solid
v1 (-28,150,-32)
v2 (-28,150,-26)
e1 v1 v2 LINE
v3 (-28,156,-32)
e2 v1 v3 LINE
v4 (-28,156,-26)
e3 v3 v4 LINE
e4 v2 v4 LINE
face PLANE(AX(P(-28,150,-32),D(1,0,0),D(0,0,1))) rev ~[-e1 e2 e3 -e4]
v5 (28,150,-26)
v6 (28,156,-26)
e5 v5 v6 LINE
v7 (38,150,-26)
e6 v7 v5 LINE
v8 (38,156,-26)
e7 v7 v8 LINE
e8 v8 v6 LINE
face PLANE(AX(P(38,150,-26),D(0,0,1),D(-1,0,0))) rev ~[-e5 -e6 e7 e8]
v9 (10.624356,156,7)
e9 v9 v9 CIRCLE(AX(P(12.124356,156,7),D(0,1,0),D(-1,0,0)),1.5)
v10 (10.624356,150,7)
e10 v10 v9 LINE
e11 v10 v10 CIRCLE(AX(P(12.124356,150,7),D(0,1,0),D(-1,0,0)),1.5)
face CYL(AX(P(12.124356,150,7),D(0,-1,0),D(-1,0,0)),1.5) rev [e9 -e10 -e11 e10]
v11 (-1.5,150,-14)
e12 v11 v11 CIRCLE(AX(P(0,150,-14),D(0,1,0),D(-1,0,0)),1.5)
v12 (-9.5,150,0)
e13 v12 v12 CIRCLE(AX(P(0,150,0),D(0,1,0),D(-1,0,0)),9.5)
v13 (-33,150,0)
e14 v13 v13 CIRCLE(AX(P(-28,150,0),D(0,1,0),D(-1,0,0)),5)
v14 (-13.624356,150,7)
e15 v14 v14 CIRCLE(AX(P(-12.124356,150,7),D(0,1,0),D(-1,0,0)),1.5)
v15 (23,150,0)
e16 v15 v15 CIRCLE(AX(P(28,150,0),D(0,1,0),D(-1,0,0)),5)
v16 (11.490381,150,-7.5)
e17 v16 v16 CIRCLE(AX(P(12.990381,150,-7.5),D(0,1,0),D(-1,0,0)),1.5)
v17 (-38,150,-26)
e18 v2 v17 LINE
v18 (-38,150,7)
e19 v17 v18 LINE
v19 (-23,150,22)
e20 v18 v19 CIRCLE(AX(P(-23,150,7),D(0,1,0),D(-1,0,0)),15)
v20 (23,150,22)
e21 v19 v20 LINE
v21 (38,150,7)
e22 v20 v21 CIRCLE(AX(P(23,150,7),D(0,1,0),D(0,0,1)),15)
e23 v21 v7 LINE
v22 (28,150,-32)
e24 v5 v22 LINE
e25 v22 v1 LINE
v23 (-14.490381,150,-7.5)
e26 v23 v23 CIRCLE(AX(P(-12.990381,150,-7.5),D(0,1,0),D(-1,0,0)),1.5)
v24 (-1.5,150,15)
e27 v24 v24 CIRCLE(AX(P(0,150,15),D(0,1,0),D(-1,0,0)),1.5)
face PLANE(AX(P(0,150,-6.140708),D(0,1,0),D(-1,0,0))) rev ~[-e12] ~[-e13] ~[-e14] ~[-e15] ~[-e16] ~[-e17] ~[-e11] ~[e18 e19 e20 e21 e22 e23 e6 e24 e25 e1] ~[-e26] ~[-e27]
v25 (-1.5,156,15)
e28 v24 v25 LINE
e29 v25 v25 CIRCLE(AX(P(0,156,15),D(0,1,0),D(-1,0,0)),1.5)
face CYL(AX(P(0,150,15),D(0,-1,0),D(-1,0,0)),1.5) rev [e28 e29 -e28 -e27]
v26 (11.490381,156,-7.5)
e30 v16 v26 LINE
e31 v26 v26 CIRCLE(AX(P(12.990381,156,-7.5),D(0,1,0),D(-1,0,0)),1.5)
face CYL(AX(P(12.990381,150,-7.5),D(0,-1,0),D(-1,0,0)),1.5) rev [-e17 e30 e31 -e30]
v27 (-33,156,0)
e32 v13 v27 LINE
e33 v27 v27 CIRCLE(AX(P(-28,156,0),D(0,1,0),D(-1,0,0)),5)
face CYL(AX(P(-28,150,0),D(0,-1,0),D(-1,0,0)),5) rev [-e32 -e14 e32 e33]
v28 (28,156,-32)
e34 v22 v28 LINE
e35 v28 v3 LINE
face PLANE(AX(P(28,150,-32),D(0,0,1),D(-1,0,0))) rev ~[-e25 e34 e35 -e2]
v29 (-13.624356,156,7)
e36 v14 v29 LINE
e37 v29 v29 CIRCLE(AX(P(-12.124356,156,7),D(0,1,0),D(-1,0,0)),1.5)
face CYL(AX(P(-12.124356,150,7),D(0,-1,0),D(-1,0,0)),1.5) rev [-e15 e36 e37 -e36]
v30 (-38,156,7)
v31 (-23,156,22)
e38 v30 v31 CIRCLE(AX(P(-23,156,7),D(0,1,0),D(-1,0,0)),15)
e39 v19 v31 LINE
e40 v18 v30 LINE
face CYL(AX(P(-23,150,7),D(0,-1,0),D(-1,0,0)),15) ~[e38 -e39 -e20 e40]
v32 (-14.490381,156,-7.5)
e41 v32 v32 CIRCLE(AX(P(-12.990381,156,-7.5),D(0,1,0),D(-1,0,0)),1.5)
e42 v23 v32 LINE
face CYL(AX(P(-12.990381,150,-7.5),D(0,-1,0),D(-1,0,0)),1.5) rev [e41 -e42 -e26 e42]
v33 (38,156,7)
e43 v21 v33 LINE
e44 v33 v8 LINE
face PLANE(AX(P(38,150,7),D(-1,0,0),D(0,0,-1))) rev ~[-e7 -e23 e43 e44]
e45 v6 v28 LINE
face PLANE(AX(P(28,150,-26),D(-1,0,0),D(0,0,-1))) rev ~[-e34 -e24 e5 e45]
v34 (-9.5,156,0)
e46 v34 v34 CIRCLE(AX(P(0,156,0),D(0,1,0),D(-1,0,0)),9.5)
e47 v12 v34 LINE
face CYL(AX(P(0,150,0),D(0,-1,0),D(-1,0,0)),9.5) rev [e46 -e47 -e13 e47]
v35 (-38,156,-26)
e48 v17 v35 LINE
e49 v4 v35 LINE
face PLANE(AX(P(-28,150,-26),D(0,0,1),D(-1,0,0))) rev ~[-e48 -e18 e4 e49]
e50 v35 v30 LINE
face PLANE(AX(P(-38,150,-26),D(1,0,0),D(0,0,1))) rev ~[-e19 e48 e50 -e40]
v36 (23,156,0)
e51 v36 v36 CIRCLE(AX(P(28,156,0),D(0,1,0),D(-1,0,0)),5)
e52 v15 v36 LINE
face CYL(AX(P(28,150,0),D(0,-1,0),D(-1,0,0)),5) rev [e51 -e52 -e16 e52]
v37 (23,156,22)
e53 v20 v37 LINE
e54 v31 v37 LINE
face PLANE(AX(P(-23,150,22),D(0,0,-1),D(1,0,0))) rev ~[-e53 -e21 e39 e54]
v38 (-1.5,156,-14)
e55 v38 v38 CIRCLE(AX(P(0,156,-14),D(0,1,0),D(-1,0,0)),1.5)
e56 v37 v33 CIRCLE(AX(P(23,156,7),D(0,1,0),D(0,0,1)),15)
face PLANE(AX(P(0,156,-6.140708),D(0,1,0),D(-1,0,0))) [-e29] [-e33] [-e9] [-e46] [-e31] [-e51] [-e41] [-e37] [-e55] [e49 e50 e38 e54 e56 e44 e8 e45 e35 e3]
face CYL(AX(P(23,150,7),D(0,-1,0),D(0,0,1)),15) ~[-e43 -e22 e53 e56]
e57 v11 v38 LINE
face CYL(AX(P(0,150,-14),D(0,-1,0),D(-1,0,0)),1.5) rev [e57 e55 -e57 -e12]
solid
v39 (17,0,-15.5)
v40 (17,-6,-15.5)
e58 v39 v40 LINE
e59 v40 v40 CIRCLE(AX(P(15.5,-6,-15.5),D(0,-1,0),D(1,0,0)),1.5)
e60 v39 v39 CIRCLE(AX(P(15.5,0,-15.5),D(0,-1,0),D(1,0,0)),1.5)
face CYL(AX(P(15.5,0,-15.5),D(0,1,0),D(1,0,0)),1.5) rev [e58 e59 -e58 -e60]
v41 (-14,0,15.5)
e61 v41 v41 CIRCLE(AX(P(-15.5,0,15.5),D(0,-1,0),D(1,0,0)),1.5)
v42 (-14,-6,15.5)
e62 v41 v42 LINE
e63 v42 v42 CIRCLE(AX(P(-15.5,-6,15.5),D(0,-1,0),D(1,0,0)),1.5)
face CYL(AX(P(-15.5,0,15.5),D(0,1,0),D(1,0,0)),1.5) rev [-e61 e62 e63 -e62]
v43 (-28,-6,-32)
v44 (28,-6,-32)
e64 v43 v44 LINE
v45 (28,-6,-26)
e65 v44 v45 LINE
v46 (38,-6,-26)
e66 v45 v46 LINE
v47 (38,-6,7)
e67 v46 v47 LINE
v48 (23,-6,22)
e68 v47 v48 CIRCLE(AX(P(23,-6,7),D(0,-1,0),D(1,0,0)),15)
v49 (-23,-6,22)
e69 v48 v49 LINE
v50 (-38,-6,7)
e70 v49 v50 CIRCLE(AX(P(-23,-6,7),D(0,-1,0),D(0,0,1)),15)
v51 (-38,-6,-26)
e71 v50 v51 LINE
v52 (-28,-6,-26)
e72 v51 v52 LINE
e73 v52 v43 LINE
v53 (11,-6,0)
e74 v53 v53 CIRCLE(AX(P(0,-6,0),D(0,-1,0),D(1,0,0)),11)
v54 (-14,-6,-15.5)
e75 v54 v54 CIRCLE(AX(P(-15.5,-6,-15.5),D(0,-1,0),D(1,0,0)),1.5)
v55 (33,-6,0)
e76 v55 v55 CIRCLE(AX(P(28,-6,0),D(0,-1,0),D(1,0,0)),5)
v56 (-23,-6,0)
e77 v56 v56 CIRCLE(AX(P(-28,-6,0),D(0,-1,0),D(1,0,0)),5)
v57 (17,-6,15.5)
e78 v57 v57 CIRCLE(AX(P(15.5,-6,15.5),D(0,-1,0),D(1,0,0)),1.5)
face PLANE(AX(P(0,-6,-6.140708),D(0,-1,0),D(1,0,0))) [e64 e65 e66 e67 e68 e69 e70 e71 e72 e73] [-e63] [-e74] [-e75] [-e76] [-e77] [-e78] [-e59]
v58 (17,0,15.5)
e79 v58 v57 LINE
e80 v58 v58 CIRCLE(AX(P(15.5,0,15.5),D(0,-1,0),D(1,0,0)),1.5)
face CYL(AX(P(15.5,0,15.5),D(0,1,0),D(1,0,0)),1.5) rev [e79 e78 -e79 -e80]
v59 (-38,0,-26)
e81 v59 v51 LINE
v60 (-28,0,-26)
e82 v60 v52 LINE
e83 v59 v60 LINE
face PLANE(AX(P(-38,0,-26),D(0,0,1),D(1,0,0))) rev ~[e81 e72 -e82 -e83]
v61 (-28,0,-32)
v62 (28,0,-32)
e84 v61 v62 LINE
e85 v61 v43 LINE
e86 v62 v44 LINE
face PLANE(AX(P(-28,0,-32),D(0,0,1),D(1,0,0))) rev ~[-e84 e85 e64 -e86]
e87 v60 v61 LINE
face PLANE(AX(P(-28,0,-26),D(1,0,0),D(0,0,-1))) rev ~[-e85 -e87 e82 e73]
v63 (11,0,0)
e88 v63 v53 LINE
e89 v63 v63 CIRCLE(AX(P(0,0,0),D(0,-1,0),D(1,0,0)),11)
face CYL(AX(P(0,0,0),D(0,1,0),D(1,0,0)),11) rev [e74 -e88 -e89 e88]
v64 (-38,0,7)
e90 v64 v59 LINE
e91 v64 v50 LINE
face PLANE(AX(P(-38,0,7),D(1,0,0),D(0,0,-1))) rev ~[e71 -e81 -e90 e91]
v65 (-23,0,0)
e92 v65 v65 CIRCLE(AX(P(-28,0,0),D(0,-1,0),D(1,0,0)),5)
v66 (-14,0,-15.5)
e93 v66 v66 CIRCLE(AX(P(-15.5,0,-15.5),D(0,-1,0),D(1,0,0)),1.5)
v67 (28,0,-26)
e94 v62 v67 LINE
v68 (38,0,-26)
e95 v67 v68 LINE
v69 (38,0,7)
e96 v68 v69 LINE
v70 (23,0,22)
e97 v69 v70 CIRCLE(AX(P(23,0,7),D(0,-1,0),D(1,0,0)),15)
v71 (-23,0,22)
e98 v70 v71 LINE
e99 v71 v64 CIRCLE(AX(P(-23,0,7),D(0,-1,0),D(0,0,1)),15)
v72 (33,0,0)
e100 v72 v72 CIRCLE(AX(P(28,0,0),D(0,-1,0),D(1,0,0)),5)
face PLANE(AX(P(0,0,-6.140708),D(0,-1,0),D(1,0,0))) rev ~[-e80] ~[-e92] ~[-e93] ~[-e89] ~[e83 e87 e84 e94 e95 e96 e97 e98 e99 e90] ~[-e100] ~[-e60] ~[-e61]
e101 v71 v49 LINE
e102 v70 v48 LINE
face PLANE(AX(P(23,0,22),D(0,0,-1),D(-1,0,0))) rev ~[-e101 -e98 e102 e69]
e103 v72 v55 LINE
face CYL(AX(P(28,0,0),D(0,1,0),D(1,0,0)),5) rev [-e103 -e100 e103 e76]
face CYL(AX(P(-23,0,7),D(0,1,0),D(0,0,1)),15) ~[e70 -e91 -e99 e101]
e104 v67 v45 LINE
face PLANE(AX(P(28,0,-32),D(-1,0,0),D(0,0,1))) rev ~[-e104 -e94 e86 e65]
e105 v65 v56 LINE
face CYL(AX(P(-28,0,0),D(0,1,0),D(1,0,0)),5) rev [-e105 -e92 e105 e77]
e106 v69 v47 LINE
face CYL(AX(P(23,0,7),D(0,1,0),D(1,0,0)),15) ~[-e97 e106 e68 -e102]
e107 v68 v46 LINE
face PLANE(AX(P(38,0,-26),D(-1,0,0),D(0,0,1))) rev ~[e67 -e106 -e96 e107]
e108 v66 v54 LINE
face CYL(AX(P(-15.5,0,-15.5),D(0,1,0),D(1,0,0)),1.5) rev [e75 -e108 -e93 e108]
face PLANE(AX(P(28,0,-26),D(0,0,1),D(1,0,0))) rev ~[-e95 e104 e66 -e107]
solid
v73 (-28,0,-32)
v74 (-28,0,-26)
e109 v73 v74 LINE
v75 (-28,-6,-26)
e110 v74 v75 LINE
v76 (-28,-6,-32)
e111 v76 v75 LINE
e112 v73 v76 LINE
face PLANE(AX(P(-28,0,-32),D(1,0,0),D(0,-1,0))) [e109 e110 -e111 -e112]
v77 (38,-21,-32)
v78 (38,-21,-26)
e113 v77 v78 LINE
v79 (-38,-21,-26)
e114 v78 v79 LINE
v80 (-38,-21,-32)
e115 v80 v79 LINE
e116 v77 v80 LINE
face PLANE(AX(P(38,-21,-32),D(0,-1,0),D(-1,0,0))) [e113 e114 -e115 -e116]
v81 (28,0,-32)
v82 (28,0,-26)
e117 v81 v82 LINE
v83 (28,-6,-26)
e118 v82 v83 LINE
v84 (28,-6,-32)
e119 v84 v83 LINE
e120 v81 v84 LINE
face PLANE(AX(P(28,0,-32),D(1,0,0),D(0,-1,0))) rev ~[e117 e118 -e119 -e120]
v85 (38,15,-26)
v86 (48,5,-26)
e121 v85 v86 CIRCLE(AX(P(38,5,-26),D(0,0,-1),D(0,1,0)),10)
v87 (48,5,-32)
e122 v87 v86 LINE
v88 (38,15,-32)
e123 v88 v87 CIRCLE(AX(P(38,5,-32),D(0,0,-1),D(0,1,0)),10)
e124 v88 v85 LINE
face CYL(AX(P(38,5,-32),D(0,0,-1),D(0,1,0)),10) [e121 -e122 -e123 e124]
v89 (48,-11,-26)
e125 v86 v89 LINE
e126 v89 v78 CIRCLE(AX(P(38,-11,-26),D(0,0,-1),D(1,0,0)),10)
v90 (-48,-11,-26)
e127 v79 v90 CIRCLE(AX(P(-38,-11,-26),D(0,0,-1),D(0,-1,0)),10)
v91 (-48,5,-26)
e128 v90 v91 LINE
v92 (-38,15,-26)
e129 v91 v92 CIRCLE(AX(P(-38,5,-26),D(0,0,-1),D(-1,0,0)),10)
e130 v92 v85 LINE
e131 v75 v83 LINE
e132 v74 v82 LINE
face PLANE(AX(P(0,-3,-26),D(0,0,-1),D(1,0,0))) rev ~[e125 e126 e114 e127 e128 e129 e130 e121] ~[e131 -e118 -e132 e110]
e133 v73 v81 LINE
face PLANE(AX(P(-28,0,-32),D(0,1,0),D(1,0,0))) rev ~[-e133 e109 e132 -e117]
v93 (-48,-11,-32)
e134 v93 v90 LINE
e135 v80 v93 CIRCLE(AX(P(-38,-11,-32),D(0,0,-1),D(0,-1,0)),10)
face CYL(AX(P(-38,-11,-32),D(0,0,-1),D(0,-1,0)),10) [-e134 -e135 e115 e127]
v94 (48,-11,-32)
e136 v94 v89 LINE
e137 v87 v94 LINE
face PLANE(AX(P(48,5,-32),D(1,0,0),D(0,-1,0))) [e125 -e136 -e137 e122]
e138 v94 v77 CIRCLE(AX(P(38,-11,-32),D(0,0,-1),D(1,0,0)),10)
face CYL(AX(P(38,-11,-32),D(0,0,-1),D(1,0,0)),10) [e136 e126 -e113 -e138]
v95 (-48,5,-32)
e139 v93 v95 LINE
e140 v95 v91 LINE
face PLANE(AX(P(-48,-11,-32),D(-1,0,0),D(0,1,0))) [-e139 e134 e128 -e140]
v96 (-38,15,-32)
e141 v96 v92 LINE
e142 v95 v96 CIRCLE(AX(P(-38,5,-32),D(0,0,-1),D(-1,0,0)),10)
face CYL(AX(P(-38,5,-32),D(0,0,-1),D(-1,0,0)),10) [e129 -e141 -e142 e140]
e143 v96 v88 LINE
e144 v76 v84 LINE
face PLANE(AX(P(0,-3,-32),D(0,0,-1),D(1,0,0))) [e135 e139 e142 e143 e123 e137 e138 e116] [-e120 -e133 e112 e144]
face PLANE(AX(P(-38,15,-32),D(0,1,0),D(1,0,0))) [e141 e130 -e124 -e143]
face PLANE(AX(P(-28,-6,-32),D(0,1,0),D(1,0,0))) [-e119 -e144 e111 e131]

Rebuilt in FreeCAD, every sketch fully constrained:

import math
import FreeCAD as App
import Part
import Sketcher


def add_polygon(sketch, points):
    """Adds a closed chain of lines whose ends are joined by coincident constraints."""
    first, n = sketch.GeometryCount, len(points)
    for a, b in zip(points, points[1:] + points[:1]):
        sketch.addGeometry(Part.LineSegment(App.Vector(*a, 0), App.Vector(*b, 0)), False)
    for i in range(n):
        sketch.addConstraint(Sketcher.Constraint("Coincident", first + i, 2, first + (i + 1) % n, 1))

doc = App.newDocument("Part")
body = doc.addObject("PartDesign::Body", "Body")

sketch1 = body.newObject("Sketcher::SketchObject", "Sketch")
sketch1.AttachmentSupport = (doc.getObject("XZ_Plane"), [""])
sketch1.MapMode = "FlatFace"
sketch1.addGeometry([
    Part.LineSegment(App.Vector(23, 22, 0), App.Vector(-23, 22, 0)),
    Part.ArcOfCircle(Part.Circle(App.Vector(-23, 7, 0), App.Vector(0, 0, 1), 15), math.radians(90), math.radians(180)),
    Part.LineSegment(App.Vector(-38, 7, 0), App.Vector(-38, -26, 0)),
    Part.LineSegment(App.Vector(-38, -26, 0), App.Vector(-28, -26, 0)),
    Part.LineSegment(App.Vector(-28, -26, 0), App.Vector(-28, -32, 0)),
    Part.LineSegment(App.Vector(-28, -32, 0), App.Vector(28, -32, 0)),
    Part.LineSegment(App.Vector(28, -32, 0), App.Vector(28, -26, 0)),
    Part.LineSegment(App.Vector(28, -26, 0), App.Vector(38, -26, 0)),
    Part.LineSegment(App.Vector(38, -26, 0), App.Vector(38, 7, 0)),
    Part.ArcOfCircle(Part.Circle(App.Vector(23, 7, 0), App.Vector(0, 0, 1), 15), math.radians(0), math.radians(90)),
    Part.Circle(App.Vector(-15.5, -15.5, 0), App.Vector(0, 0, 1), 1.5),
    Part.Circle(App.Vector(15.5, -15.5, 0), App.Vector(0, 0, 1), 1.5),
    Part.Circle(App.Vector(-28, 0, 0), App.Vector(0, 0, 1), 5),
    Part.Circle(App.Vector(-15.5, 15.5, 0), App.Vector(0, 0, 1), 1.5),
    Part.Circle(App.Vector(0, 0, 0), App.Vector(0, 0, 1), 11),
    Part.Circle(App.Vector(28, 0, 0), App.Vector(0, 0, 1), 5),
    Part.Circle(App.Vector(15.5, 15.5, 0), App.Vector(0, 0, 1), 1.5),
], False)
sketch1.addConstraint([
    Sketcher.Constraint("Tangent", 0, 2, 1, 1),
    Sketcher.Constraint("Tangent", 1, 2, 2, 1),
    Sketcher.Constraint("Coincident", 2, 2, 3, 1),
    Sketcher.Constraint("Coincident", 3, 2, 4, 1),
    Sketcher.Constraint("Coincident", 4, 2, 5, 1),
    Sketcher.Constraint("Coincident", 5, 2, 6, 1),
    Sketcher.Constraint("Coincident", 6, 2, 7, 1),
    Sketcher.Constraint("Coincident", 7, 2, 8, 1),
    Sketcher.Constraint("Tangent", 8, 2, 9, 1),
    Sketcher.Constraint("Tangent", 9, 2, 0, 1),
    Sketcher.Constraint("Horizontal", 0),
    Sketcher.Constraint("Vertical", 2),
    Sketcher.Constraint("Horizontal", 3),
    Sketcher.Constraint("Vertical", 4),
    Sketcher.Constraint("Horizontal", 5),
    Sketcher.Constraint("Vertical", 6),
    Sketcher.Constraint("Horizontal", 7),
    Sketcher.Constraint("Vertical", 8),
    Sketcher.Constraint("Coincident", 14, 3, -1, 1),
    Sketcher.Constraint("Equal", 1, 9),
    Sketcher.Constraint("Equal", 10, 11),
    Sketcher.Constraint("Equal", 11, 13),
    Sketcher.Constraint("Equal", 12, 15),
    Sketcher.Constraint("Equal", 13, 16),
    Sketcher.Constraint("Symmetric", 11, 3, 13, 3, -1, 1),
    Sketcher.Constraint("Symmetric", 12, 3, 15, 3, -1, 1),
    Sketcher.Constraint("Symmetric", 10, 3, 16, 3, -1, 1),
    Sketcher.Constraint("Symmetric", 10, 3, 11, 3, -2),
    Sketcher.Constraint("Symmetric", 3, 2, 6, 2, -2),
    Sketcher.Constraint("PointOnObject", 12, 3, -1),
    Sketcher.Constraint("Vertical", 12, 3, 3, 2),
    Sketcher.Constraint("Equal", 3, 7),
    Sketcher.Constraint("Diameter", 10, 3.0),
    Sketcher.Constraint("Diameter", 12, 10.0),
    Sketcher.Constraint("Diameter", 14, 22.0),
    Sketcher.Constraint("Radius", 1, 15.0),
    Sketcher.Constraint("DistanceX", 0, 2, 0, 1, 46.0),
    Sketcher.Constraint("DistanceX", 3, 1, 3, 2, 10.0),
    Sketcher.Constraint("DistanceY", 2, 2, 2, 1, 33.0),
    Sketcher.Constraint("DistanceY", 4, 2, 4, 1, 6.0),
    Sketcher.Constraint("DistanceY", -1, 1, 1, 3, 7.0),
    Sketcher.Constraint("DistanceX", 10, 3, 11, 3, 31.0),
    Sketcher.Constraint("DistanceY", 10, 3, 13, 3, 31.0),
])
pad1 = body.newObject("PartDesign::Pad", "Pad")
pad1.Profile = sketch1
pad1.Length = 6
body2 = doc.addObject("PartDesign::Body", "Body001")

sketch2 = body2.newObject("Sketcher::SketchObject", "Sketch001")
sketch2.AttachmentSupport = (doc.getObject("XZ_Plane001"), [""])
sketch2.MapMode = "FlatFace"
sketch2.AttachmentOffset = App.Placement(App.Vector(0, 0, -150), App.Rotation())
sketch2.addGeometry([
    Part.LineSegment(App.Vector(38, 7, 0), App.Vector(38, -26, 0)),
    Part.LineSegment(App.Vector(38, -26, 0), App.Vector(28, -26, 0)),
    Part.LineSegment(App.Vector(28, -26, 0), App.Vector(28, -32, 0)),
    Part.LineSegment(App.Vector(28, -32, 0), App.Vector(-28, -32, 0)),
    Part.LineSegment(App.Vector(-28, -32, 0), App.Vector(-28, -26, 0)),
    Part.LineSegment(App.Vector(-28, -26, 0), App.Vector(-38, -26, 0)),
    Part.LineSegment(App.Vector(-38, -26, 0), App.Vector(-38, 7, 0)),
    Part.ArcOfCircle(Part.Circle(App.Vector(-23, 7, 0), App.Vector(0, 0, 1), 15), math.radians(90), math.radians(180)),
    Part.LineSegment(App.Vector(-23, 22, 0), App.Vector(23, 22, 0)),
    Part.ArcOfCircle(Part.Circle(App.Vector(23, 7, 0), App.Vector(0, 0, 1), 15), math.radians(0), math.radians(90)),
    Part.Circle(App.Vector(28, 0, 0), App.Vector(0, 0, 1), 5),
    Part.Circle(App.Vector(12.990381, -7.5, 0), App.Vector(0, 0, 1), 1.5),
    Part.Circle(App.Vector(0, -14, 0), App.Vector(0, 0, 1), 1.5),
    Part.Circle(App.Vector(-12.990381, -7.5, 0), App.Vector(0, 0, 1), 1.5),
    Part.Circle(App.Vector(0, 0, 0), App.Vector(0, 0, 1), 9.5),
    Part.Circle(App.Vector(-28, 0, 0), App.Vector(0, 0, 1), 5),
    Part.Circle(App.Vector(12.124356, 7, 0), App.Vector(0, 0, 1), 1.5),
    Part.Circle(App.Vector(-12.124356, 7, 0), App.Vector(0, 0, 1), 1.5),
    Part.Circle(App.Vector(0, 15, 0), App.Vector(0, 0, 1), 1.5),
], False)
sketch2.addConstraint([
    Sketcher.Constraint("Coincident", 0, 2, 1, 1),
    Sketcher.Constraint("Coincident", 1, 2, 2, 1),
    Sketcher.Constraint("Coincident", 2, 2, 3, 1),
    Sketcher.Constraint("Coincident", 3, 2, 4, 1),
    Sketcher.Constraint("Coincident", 4, 2, 5, 1),
    Sketcher.Constraint("Coincident", 5, 2, 6, 1),
    Sketcher.Constraint("Tangent", 6, 2, 7, 2),
    Sketcher.Constraint("Tangent", 7, 1, 8, 1),
    Sketcher.Constraint("Tangent", 8, 2, 9, 2),
    Sketcher.Constraint("Tangent", 9, 1, 0, 1),
    Sketcher.Constraint("Vertical", 0),
    Sketcher.Constraint("Horizontal", 1),
    Sketcher.Constraint("Vertical", 2),
    Sketcher.Constraint("Horizontal", 3),
    Sketcher.Constraint("Vertical", 4),
    Sketcher.Constraint("Horizontal", 5),
    Sketcher.Constraint("Vertical", 6),
    Sketcher.Constraint("Horizontal", 8),
    Sketcher.Constraint("Coincident", 14, 3, -1, 1),
    Sketcher.Constraint("Equal", 7, 9),
    Sketcher.Constraint("Equal", 11, 12),
    Sketcher.Constraint("Equal", 12, 13),
    Sketcher.Constraint("Equal", 10, 15),
    Sketcher.Constraint("Equal", 13, 16),
    Sketcher.Constraint("Equal", 16, 17),
    Sketcher.Constraint("Equal", 17, 18),
    Sketcher.Constraint("Symmetric", 10, 3, 15, 3, -1, 1),
    Sketcher.Constraint("Symmetric", 11, 3, 13, 3, -2),
    Sketcher.Constraint("Symmetric", 16, 3, 17, 3, -2),
    Sketcher.Constraint("Symmetric", 1, 2, 4, 2, -2),
    Sketcher.Constraint("PointOnObject", 10, 3, -1),
    Sketcher.Constraint("PointOnObject", 12, 3, -2),
    Sketcher.Constraint("PointOnObject", 18, 3, -2),
    Sketcher.Constraint("Horizontal", 9, 3, 16, 3),
    Sketcher.Constraint("Vertical", 10, 3, 1, 2),
    Sketcher.Constraint("Equal", 1, 5),
    Sketcher.Constraint("Diameter", 10, 10.0),
    Sketcher.Constraint("Diameter", 11, 3.0),
    Sketcher.Constraint("Diameter", 14, 19.0),
    Sketcher.Constraint("Radius", 7, 15.0),
    Sketcher.Constraint("DistanceX", 1, 2, 1, 1, 10.0),
    Sketcher.Constraint("DistanceX", 3, 2, 3, 1, 56.0),
    Sketcher.Constraint("DistanceY", 0, 2, 0, 1, 33.0),
    Sketcher.Constraint("DistanceY", 2, 2, 2, 1, 6.0),
    Sketcher.Constraint("DistanceY", -1, 1, 7, 3, 7.0),
    Sketcher.Constraint("DistanceY", 12, 3, -1, 1, 14.0),
    Sketcher.Constraint("DistanceY", -1, 1, 18, 3, 15.0),
    Sketcher.Constraint("DistanceY", 11, 3, -1, 1, 7.5),
    Sketcher.Constraint("DistanceX", -1, 1, 11, 3, 12.990381),
    Sketcher.Constraint("DistanceX", -1, 1, 16, 3, 12.124356),
])
pad2 = body2.newObject("PartDesign::Pad", "Pad001")
pad2.Profile = sketch2
pad2.Length = 6
pad2.Reversed = True
body3 = doc.addObject("PartDesign::Body", "Body002")

sketch3 = body3.newObject("Sketcher::SketchObject", "Sketch002")
sketch3.AttachmentSupport = (doc.getObject("XY_Plane002"), [""])
sketch3.MapMode = "FlatFace"
sketch3.AttachmentOffset = App.Placement(App.Vector(0, 0, -32), App.Rotation())
sketch3.addGeometry(Part.ArcOfCircle(Part.Circle(App.Vector(38, -11, 0), App.Vector(0, 0, 1), 10), math.radians(-90), math.radians(0)), False)
sketch3.addGeometry(Part.LineSegment(App.Vector(38, -21, 0), App.Vector(-38, -21, 0)), False)
sketch3.addGeometry(Part.ArcOfCircle(Part.Circle(App.Vector(-38, -11, 0), App.Vector(0, 0, 1), 10), math.radians(180), math.radians(270)), False)
sketch3.addGeometry(Part.LineSegment(App.Vector(-48, -11, 0), App.Vector(-48, 5, 0)), False)
sketch3.addGeometry(Part.ArcOfCircle(Part.Circle(App.Vector(-38, 5, 0), App.Vector(0, 0, 1), 10), math.radians(90), math.radians(180)), False)
sketch3.addGeometry(Part.LineSegment(App.Vector(-38, 15, 0), App.Vector(38, 15, 0)), False)
sketch3.addGeometry(Part.ArcOfCircle(Part.Circle(App.Vector(38, 5, 0), App.Vector(0, 0, 1), 10), math.radians(0), math.radians(90)), False)
sketch3.addGeometry(Part.LineSegment(App.Vector(48, 5, 0), App.Vector(48, -11, 0)), False)
add_polygon(sketch3, [(28, 0), (-28, 0), (-28, -6), (28, -6)])
sketch3.addConstraint([
    Sketcher.Constraint("Tangent", 0, 1, 1, 1),
    Sketcher.Constraint("Tangent", 1, 2, 2, 2),
    Sketcher.Constraint("Tangent", 2, 1, 3, 1),
    Sketcher.Constraint("Tangent", 3, 2, 4, 2),
    Sketcher.Constraint("Tangent", 4, 1, 5, 1),
    Sketcher.Constraint("Tangent", 5, 2, 6, 2),
    Sketcher.Constraint("Tangent", 6, 1, 7, 1),
    Sketcher.Constraint("Tangent", 7, 2, 0, 2),
    Sketcher.Constraint("Horizontal", 1),
    Sketcher.Constraint("Vertical", 3),
    Sketcher.Constraint("Horizontal", 5),
    Sketcher.Constraint("Vertical", 7),
    Sketcher.Constraint("Horizontal", 8),
    Sketcher.Constraint("Vertical", 9),
    Sketcher.Constraint("Horizontal", 10),
    Sketcher.Constraint("Vertical", 11),
    Sketcher.Constraint("Equal", 0, 2),
    Sketcher.Constraint("Equal", 2, 4),
    Sketcher.Constraint("Equal", 4, 6),
    Sketcher.Constraint("Symmetric", 8, 2, 11, 2, -1, 1),
    Sketcher.Constraint("Radius", 0, 10.0),
    Sketcher.Constraint("DistanceX", 1, 2, 1, 1, 76.0),
    Sketcher.Constraint("DistanceX", 8, 2, 8, 1, 56.0),
    Sketcher.Constraint("DistanceY", 3, 1, 3, 2, 16.0),
    Sketcher.Constraint("DistanceY", 9, 2, 9, 1, 6.0),
    Sketcher.Constraint("DistanceX", -1, 1, 0, 3, 38.0),
    Sketcher.Constraint("DistanceY", 0, 3, -1, 1, 11.0),
])
pad3 = body3.newObject("PartDesign::Pad", "Pad002")
pad3.Profile = sketch3
pad3.Length = 6

doc.recompute()
